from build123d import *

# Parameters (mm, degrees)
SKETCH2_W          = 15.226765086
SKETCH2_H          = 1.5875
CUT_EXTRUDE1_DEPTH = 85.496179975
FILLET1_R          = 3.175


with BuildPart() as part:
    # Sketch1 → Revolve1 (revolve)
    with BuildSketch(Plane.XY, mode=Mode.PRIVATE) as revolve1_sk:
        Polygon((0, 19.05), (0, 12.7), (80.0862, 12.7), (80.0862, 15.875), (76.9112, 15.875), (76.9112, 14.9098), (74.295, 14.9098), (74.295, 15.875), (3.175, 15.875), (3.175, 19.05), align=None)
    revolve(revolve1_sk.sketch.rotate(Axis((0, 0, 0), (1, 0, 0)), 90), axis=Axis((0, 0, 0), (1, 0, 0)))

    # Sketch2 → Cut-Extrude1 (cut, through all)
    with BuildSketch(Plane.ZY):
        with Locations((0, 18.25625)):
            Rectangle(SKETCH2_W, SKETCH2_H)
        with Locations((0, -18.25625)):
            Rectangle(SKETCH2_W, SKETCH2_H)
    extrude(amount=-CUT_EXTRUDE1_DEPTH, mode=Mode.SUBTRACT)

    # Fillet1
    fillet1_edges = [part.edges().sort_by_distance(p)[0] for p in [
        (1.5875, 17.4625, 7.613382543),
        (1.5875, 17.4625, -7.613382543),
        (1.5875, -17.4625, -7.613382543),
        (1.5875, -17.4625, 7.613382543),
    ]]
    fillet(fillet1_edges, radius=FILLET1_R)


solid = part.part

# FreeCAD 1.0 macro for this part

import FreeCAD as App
import Part
import Sketcher
Q = App.Units.Quantity


def edges_at(feature, points):
    """Names of the edges that pass closest to the given points."""
    edges = feature.Shape.Edges
    near = lambda p: min(range(len(edges)), key=lambda i: edges[i].distToShape(Part.Vertex(*p))[0])
    return sorted({f"Edge{near(p) + 1}" for p in points})

doc = App.newDocument("Part")
body = doc.addObject("PartDesign::Body", "Body")

# Sketch on XY plane
sketch1 = doc.addObject("Sketcher::SketchObject", "Sketch")
body.addObject(sketch1)
sketch1.AttachmentSupport = (doc.XY_Plane, [""])
sketch1.MapMode = "FlatFace"
sketch1.addGeometry([
    Part.LineSegment(App.Vector(0, 19.1, 0), App.Vector(0, 12.7, 0)),  # 0
    Part.LineSegment(App.Vector(0, 12.7, 0), App.Vector(80.1, 12.7, 0)),  # 1
    Part.LineSegment(App.Vector(80.1, 12.7, 0), App.Vector(80.1, 15.9, 0)),  # 2
    Part.LineSegment(App.Vector(80.1, 15.9, 0), App.Vector(76.9, 15.9, 0)),  # 3
    Part.LineSegment(App.Vector(76.9, 15.9, 0), App.Vector(76.9, 14.9, 0)),  # 4
    Part.LineSegment(App.Vector(76.9, 14.9, 0), App.Vector(74.3, 14.9, 0)),  # 5
    Part.LineSegment(App.Vector(74.3, 14.9, 0), App.Vector(74.3, 15.9, 0)),  # 6
    Part.LineSegment(App.Vector(74.3, 15.9, 0), App.Vector(3.2, 15.9, 0)),  # 7
    Part.LineSegment(App.Vector(3.2, 15.9, 0), App.Vector(3.2, 19.1, 0)),  # 8
    Part.LineSegment(App.Vector(3.2, 19.1, 0), App.Vector(0, 19.1, 0)),  # 9
], False)
sketch1.addConstraint([
    Sketcher.Constraint("Coincident", 0, 2, 1, 1),
    Sketcher.Constraint("Coincident", 1, 2, 2, 1),
    Sketcher.Constraint("Coincident", 2, 2, 3, 1),
    Sketcher.Constraint("Coincident", 3, 2, 4, 1),
    Sketcher.Constraint("Coincident", 4, 2, 5, 1),
    Sketcher.Constraint("Coincident", 5, 2, 6, 1),
    Sketcher.Constraint("Coincident", 6, 2, 7, 1),
    Sketcher.Constraint("Coincident", 7, 2, 8, 1),
    Sketcher.Constraint("Coincident", 8, 2, 9, 1),
    Sketcher.Constraint("Coincident", 9, 2, 0, 1),
    Sketcher.Constraint("Vertical", 0),
    Sketcher.Constraint("Horizontal", 1),
    Sketcher.Constraint("Vertical", 2),
    Sketcher.Constraint("Horizontal", 3),
    Sketcher.Constraint("Vertical", 4),
    Sketcher.Constraint("Horizontal", 5),
    Sketcher.Constraint("Vertical", 6),
    Sketcher.Constraint("Horizontal", 7),
    Sketcher.Constraint("Vertical", 8),
    Sketcher.Constraint("Horizontal", 9),
    Sketcher.Constraint("PointOnObject", 0, 2, -2),
    Sketcher.Constraint("Horizontal", 3, 2, 6, 2),
    Sketcher.Constraint("Equal", 3, 9),
    Sketcher.Constraint("Equal", 9, 2),
    Sketcher.Constraint("Equal", 2, 8),
    Sketcher.Constraint("DistanceX", 7, 2, 7, 1, Q("2.8 in")),
    Sketcher.Constraint("DistanceY", 0, 2, 0, 1, Q("0.25 in")),
    Sketcher.Constraint("DistanceY", -1, 1, 0, 2, Q("0.5 in")),
    Sketcher.Constraint("DistanceX", 1, 1, 1, 2, Q("3.153 in")),
    Sketcher.Constraint("DistanceY", 4, 2, 4, 1, Q("0.038 in")),
])
revolution = doc.addObject("PartDesign::Revolution", "Revolution")
body.addObject(revolution)
revolution.Profile = sketch1
revolution.ReferenceAxis = (sketch1, ["H_Axis"])
revolution.Angle = 360

# Sketch on YZ plane
sketch2 = doc.addObject("Sketcher::SketchObject", "Sketch001")
body.addObject(sketch2)
sketch2.AttachmentSupport = (doc.YZ_Plane, [""])
sketch2.MapMode = "FlatFace"
sketch2.addGeometry([
    Part.LineSegment(App.Vector(19.1, -7.6, 0), App.Vector(17.5, -7.6, 0)),  # 0
    Part.LineSegment(App.Vector(17.5, -7.6, 0), App.Vector(17.5, 7.6, 0)),  # 1
    Part.LineSegment(App.Vector(17.5, 7.6, 0), App.Vector(19.1, 7.6, 0)),  # 2
    Part.LineSegment(App.Vector(19.1, 7.6, 0), App.Vector(19.1, -7.6, 0)),  # 3
    Part.LineSegment(App.Vector(-17.5, -7.6, 0), App.Vector(-19.1, -7.6, 0)),  # 4
    Part.LineSegment(App.Vector(-19.1, -7.6, 0), App.Vector(-19.1, 7.6, 0)),  # 5
    Part.LineSegment(App.Vector(-19.1, 7.6, 0), App.Vector(-17.5, 7.6, 0)),  # 6
    Part.LineSegment(App.Vector(-17.5, 7.6, 0), App.Vector(-17.5, -7.6, 0)),  # 7
], False)
sketch2.addConstraint([
    Sketcher.Constraint("Coincident", 0, 2, 1, 1),
    Sketcher.Constraint("Coincident", 1, 2, 2, 1),
    Sketcher.Constraint("Coincident", 2, 2, 3, 1),
    Sketcher.Constraint("Coincident", 3, 2, 0, 1),
    Sketcher.Constraint("Coincident", 4, 2, 5, 1),
    Sketcher.Constraint("Coincident", 5, 2, 6, 1),
    Sketcher.Constraint("Coincident", 6, 2, 7, 1),
    Sketcher.Constraint("Coincident", 7, 2, 4, 1),
    Sketcher.Constraint("Horizontal", 0),
    Sketcher.Constraint("Vertical", 1),
    Sketcher.Constraint("Horizontal", 2),
    Sketcher.Constraint("Vertical", 3),
    Sketcher.Constraint("Horizontal", 4),
    Sketcher.Constraint("Vertical", 5),
    Sketcher.Constraint("Horizontal", 6),
    Sketcher.Constraint("Vertical", 7),
    Sketcher.Constraint("Symmetric", 2, 2, 4, 2, -1, 1),
    Sketcher.Constraint("Symmetric", 0, 2, 6, 2, -1, 1),
    Sketcher.Constraint("Horizontal", 3, 2, 4, 2),
    Sketcher.Constraint("DistanceX", 4, 2, 3, 2, Q("1.5 in")),
    Sketcher.Constraint("DistanceX", 0, 2, 0, 1, Q("0.0625 in")),
    Sketcher.Constraint("DistanceY", 1, 1, 1, 2, Q("15.226765 mm")),
])
pocket1 = doc.addObject("PartDesign::Pocket", "Pocket")
body.addObject(pocket1)
pocket1.Profile = sketch2
pocket1.Type = "ThroughAll"
pocket1.Reversed = True
doc.recompute()

fillet = doc.addObject("PartDesign::Fillet", "Fillet")
body.addObject(fillet)
fillet.Base = (pocket1, edges_at(pocket1, [
    (1.587, 17.462, 7.613),
    (1.587, 17.462, -7.613),
    (1.587, -17.462, -7.613),
    (1.587, -17.462, 7.613),
]))
fillet.Radius = Q("0.125 in")

doc.recompute()
